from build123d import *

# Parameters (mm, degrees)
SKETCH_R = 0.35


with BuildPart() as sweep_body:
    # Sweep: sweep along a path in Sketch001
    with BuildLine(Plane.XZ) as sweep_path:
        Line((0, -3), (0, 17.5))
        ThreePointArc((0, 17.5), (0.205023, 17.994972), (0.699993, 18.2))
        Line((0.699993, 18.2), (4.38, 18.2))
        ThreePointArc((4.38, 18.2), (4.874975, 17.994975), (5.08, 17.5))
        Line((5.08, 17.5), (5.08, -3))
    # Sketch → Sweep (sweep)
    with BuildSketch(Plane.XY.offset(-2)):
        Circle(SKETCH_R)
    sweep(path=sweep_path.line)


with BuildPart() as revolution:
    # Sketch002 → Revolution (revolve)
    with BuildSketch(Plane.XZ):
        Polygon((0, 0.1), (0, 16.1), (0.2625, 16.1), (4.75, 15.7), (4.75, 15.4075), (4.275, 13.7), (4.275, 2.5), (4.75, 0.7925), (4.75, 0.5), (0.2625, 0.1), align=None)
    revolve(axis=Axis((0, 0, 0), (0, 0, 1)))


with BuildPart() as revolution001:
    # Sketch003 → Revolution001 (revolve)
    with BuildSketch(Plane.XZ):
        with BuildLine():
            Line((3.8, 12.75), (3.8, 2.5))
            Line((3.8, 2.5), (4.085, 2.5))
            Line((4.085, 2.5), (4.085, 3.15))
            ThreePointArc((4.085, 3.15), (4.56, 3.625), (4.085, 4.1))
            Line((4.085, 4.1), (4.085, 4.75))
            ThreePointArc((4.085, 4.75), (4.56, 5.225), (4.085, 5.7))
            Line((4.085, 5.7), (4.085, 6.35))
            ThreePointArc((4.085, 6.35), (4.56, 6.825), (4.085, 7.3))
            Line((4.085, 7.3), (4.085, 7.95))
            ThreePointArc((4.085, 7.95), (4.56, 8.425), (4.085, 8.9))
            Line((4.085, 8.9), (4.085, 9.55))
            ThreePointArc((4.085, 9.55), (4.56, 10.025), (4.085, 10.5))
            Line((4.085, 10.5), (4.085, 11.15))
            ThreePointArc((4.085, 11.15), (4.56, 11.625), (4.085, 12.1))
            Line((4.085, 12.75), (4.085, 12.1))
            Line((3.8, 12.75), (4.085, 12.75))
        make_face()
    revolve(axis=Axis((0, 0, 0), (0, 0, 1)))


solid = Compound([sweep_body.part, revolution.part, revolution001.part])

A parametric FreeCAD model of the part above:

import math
import FreeCAD as App
import Part
import Sketcher

doc = App.newDocument("Part")
body = doc.addObject("PartDesign::Body", "Body")

# Sketch on XY plane
sketch1 = body.newObject("Sketcher::SketchObject", "Sketch")
sketch1.AttachmentSupport = (doc.getObject("XY_Plane"), [""])
sketch1.MapMode = "FlatFace"
sketch1.AttachmentOffset = App.Placement(App.Vector(0, 0, -2), App.Rotation())
sketch1.addGeometry(Part.Circle(App.Vector(0, 0, 0), App.Vector(0, 0, 1), 0.35), False)
sketch1.addConstraint(Sketcher.Constraint("Coincident", 0, 3, -1, 1))
sketch1.addConstraint(Sketcher.Constraint("Diameter", 0, 0.7))

# Sketch on XZ plane
sketch2 = body.newObject("Sketcher::SketchObject", "Sketch001")
sketch2.AttachmentSupport = (doc.getObject("XZ_Plane"), [""])
sketch2.MapMode = "FlatFace"
sketch2.addGeometry(Part.LineSegment(App.Vector(0, -3, 0), App.Vector(0, 17.5, 0)), False)
sketch2.addGeometry(Part.ArcOfCircle(Part.Circle(App.Vector(0.7, 17.5, 0), App.Vector(0, 0, 1), 0.7), math.radians(90), math.radians(180)), False)
sketch2.addGeometry(Part.LineSegment(App.Vector(0.7, 18.2, 0), App.Vector(4.4, 18.2, 0)), False)
sketch2.addGeometry(Part.ArcOfCircle(Part.Circle(App.Vector(4.4, 17.5, 0), App.Vector(0, 0, 1), 0.7), math.radians(0), math.radians(90)), False)
sketch2.addGeometry(Part.LineSegment(App.Vector(5.1, 17.5, 0), App.Vector(5.1, -3, 0)), False)
sketch2.addConstraint(Sketcher.Constraint("Tangent", 0, 2, 1, 2))
sketch2.addConstraint(Sketcher.Constraint("Coincident", 1, 1, 2, 1))
sketch2.addConstraint(Sketcher.Constraint("Tangent", 2, 2, 3, 2))
sketch2.addConstraint(Sketcher.Constraint("Tangent", 3, 1, 4, 1))
sketch2.addConstraint(Sketcher.Constraint("Vertical", 0))
sketch2.addConstraint(Sketcher.Constraint("Horizontal", 2))
sketch2.addConstraint(Sketcher.Constraint("Vertical", 4))
sketch2.addConstraint(Sketcher.Constraint("Equal", 1, 3))
sketch2.addConstraint(Sketcher.Constraint("PointOnObject", 0, 1, -2))
sketch2.addConstraint(Sketcher.Constraint("Horizontal", 0, 1, 4, 2))
sketch2.addConstraint(Sketcher.Constraint("Radius", 1, 0.700001))
sketch2.addConstraint(Sketcher.Constraint("DistanceY", 0, 1, 0, 2, 20.5))
sketch2.addConstraint(Sketcher.Constraint("DistanceY", 0, 1, -1, 1, 3.0))
sketch2.addConstraint(Sketcher.Constraint("DistanceX", -1, 1, 3, 3, 4.380001))
sketch2.addConstraint(Sketcher.Constraint("DistanceX", 2, 1, 2, 2, 3.680007))
doc.recompute()

additivepipe = body.newObject("PartDesign::AdditivePipe", "AdditivePipe")
additivepipe.Profile = sketch1
additivepipe.Spine = (sketch2, ["Edge1", "Edge2", "Edge3", "Edge4", "Edge5"])
body2 = doc.addObject("PartDesign::Body", "Body001")

# Sketch on XZ plane
sketch3 = body2.newObject("Sketcher::SketchObject", "Sketch002")
sketch3.AttachmentSupport = (doc.getObject("XZ_Plane001"), [""])
sketch3.MapMode = "FlatFace"
sketch3.addGeometry(Part.LineSegment(App.Vector(0, 16.1, 0), App.Vector(0, 0.1, 0)), False)
sketch3.addGeometry(Part.LineSegment(App.Vector(0, 0.1, 0), App.Vector(0.26, 0.1, 0)), False)
sketch3.addGeometry(Part.LineSegment(App.Vector(0.26, 0.1, 0), App.Vector(4.75, 0.5, 0)), False)
sketch3.addGeometry(Part.LineSegment(App.Vector(4.75, 0.5, 0), App.Vector(4.75, 0.79, 0)), False)
sketch3.addGeometry(Part.LineSegment(App.Vector(4.75, 0.79, 0), App.Vector(4.28, 2.5, 0)), False)
sketch3.addGeometry(Part.LineSegment(App.Vector(4.28, 2.5, 0), App.Vector(4.28, 13.7, 0)), False)
sketch3.addGeometry(Part.LineSegment(App.Vector(4.28, 13.7, 0), App.Vector(4.75, 15.41, 0)), False)
sketch3.addGeometry(Part.LineSegment(App.Vector(4.75, 15.41, 0), App.Vector(4.75, 15.7, 0)), False)
sketch3.addGeometry(Part.LineSegment(App.Vector(4.75, 15.7, 0), App.Vector(0.26, 16.1, 0)), False)
sketch3.addGeometry(Part.LineSegment(App.Vector(0.26, 16.1, 0), App.Vector(0, 16.1, 0)), False)
sketch3.addConstraint(Sketcher.Constraint("Coincident", 0, 2, 1, 1))
sketch3.addConstraint(Sketcher.Constraint("Coincident", 1, 2, 2, 1))
sketch3.addConstraint(Sketcher.Constraint("Coincident", 2, 2, 3, 1))
sketch3.addConstraint(Sketcher.Constraint("Coincident", 3, 2, 4, 1))
sketch3.addConstraint(Sketcher.Constraint("Coincident", 4, 2, 5, 1))
sketch3.addConstraint(Sketcher.Constraint("Coincident", 5, 2, 6, 1))
sketch3.addConstraint(Sketcher.Constraint("Coincident", 6, 2, 7, 1))
sketch3.addConstraint(Sketcher.Constraint("Coincident", 7, 2, 8, 1))
sketch3.addConstraint(Sketcher.Constraint("Coincident", 8, 2, 9, 1))
sketch3.addConstraint(Sketcher.Constraint("Coincident", 9, 2, 0, 1))
sketch3.addConstraint(Sketcher.Constraint("Vertical", 0))
sketch3.addConstraint(Sketcher.Constraint("Horizontal", 1))
sketch3.addConstraint(Sketcher.Constraint("Vertical", 3))
sketch3.addConstraint(Sketcher.Constraint("Vertical", 5))
sketch3.addConstraint(Sketcher.Constraint("Vertical", 7))
sketch3.addConstraint(Sketcher.Constraint("Horizontal", 9))
sketch3.addConstraint(Sketcher.Constraint("PointOnObject", 0, 2, -2))
sketch3.addConstraint(Sketcher.Constraint("Vertical", 3, 2, 6, 2))
sketch3.addConstraint(Sketcher.Constraint("Vertical", 1, 2, 8, 2))
sketch3.addConstraint(Sketcher.Constraint("Equal", 3, 7))
sketch3.addConstraint(Sketcher.Constraint("Equal", 4, 6))
sketch3.addConstraint(Sketcher.Constraint("Equal", 2, 8))
sketch3.addConstraint(Sketcher.Constraint("DistanceY", 0, 2, 0, 1, 16.0))
sketch3.addConstraint(Sketcher.Constraint("DistanceY", 5, 1, 5, 2, 11.2))
sketch3.addConstraint(Sketcher.Constraint("DistanceY", 2, 2, 4, 2, 2.0))
sketch3.addConstraint(Sketcher.Constraint("DistanceY", -1, 1, 0, 2, 0.1))
sketch3.addConstraint(Sketcher.Constraint("DistanceX", -1, 1, 2, 2, 4.75))
sketch3.addConstraint(Sketcher.Constraint("DistanceX", 1, 1, 1, 2, 0.2625))
sketch3.addConstraint(Sketcher.Constraint("DistanceY", 3, 1, 3, 2, 0.2925))
sketch3.addConstraint(Sketcher.Constraint("DistanceX", -1, 1, 4, 2, 4.275))
revolution = body2.newObject("PartDesign::Revolution", "Revolution")
revolution.Profile = sketch3
revolution.ReferenceAxis = (sketch3, ["V_Axis"])
revolution.Angle = 360
body3 = doc.addObject("PartDesign::Body", "Body002")

# Sketch on XZ plane
sketch4 = body3.newObject("Sketcher::SketchObject", "Sketch003")
sketch4.AttachmentSupport = (doc.getObject("XZ_Plane002"), [""])
sketch4.MapMode = "FlatFace"
sketch4.addGeometry(Part.LineSegment(App.Vector(3.8, 12.75, 0), App.Vector(3.8, 2.5, 0)), False)
sketch4.addGeometry(Part.LineSegment(App.Vector(3.8, 2.5, 0), App.Vector(4.08, 2.5, 0)), False)
sketch4.addGeometry(Part.LineSegment(App.Vector(4.08, 2.5, 0), App.Vector(4.08, 3.15, 0)), False)
sketch4.addGeometry(Part.ArcOfCircle(Part.Circle(App.Vector(4.08, 3.62, 0), App.Vector(0, 0, 1), 0.47), math.radians(-90), math.radians(90)), False)
sketch4.addGeometry(Part.LineSegment(App.Vector(4.08, 4.1, 0), App.Vector(4.08, 4.75, 0)), False)
sketch4.addGeometry(Part.ArcOfCircle(Part.Circle(App.Vector(4.08, 5.22, 0), App.Vector(0, 0, 1), 0.47), math.radians(-90), math.radians(90)), False)
sketch4.addGeometry(Part.LineSegment(App.Vector(4.08, 5.7, 0), App.Vector(4.08, 6.35, 0)), False)
sketch4.addGeometry(Part.ArcOfCircle(Part.Circle(App.Vector(4.08, 6.83, 0), App.Vector(0, 0, 1), 0.47), math.radians(-90), math.radians(90)), False)
sketch4.addGeometry(Part.LineSegment(App.Vector(4.08, 7.3, 0), App.Vector(4.08, 7.95, 0)), False)
sketch4.addGeometry(Part.ArcOfCircle(Part.Circle(App.Vector(4.08, 8.43, 0), App.Vector(0, 0, 1), 0.47), math.radians(-90), math.radians(90)), False)
sketch4.addGeometry(Part.LineSegment(App.Vector(4.08, 8.9, 0), App.Vector(4.08, 9.55, 0)), False)
sketch4.addGeometry(Part.ArcOfCircle(Part.Circle(App.Vector(4.08, 10.03, 0), App.Vector(0, 0, 1), 0.47), math.radians(-90), math.radians(90)), False)
sketch4.addGeometry(Part.LineSegment(App.Vector(4.08, 10.5, 0), App.Vector(4.08, 11.15, 0)), False)
sketch4.addGeometry(Part.ArcOfCircle(Part.Circle(App.Vector(4.08, 11.62, 0), App.Vector(0, 0, 1), 0.47), math.radians(-90), math.radians(90)), False)
sketch4.addGeometry(Part.LineSegment(App.Vector(4.08, 12.1, 0), App.Vector(4.08, 12.75, 0)), False)
sketch4.addGeometry(Part.LineSegment(App.Vector(4.08, 12.75, 0), App.Vector(3.8, 12.75, 0)), False)
sketch4.addConstraint(Sketcher.Constraint("Coincident", 0, 2, 1, 1))
sketch4.addConstraint(Sketcher.Constraint("Coincident", 1, 2, 2, 1))
sketch4.addConstraint(Sketcher.Constraint("Coincident", 2, 2, 3, 1))
sketch4.addConstraint(Sketcher.Constraint("Coincident", 3, 2, 4, 1))
sketch4.addConstraint(Sketcher.Constraint("Coincident", 4, 2, 5, 1))
sketch4.addConstraint(Sketcher.Constraint("Coincident", 5, 2, 6, 1))
sketch4.addConstraint(Sketcher.Constraint("Coincident", 6, 2, 7, 1))
sketch4.addConstraint(Sketcher.Constraint("Coincident", 7, 2, 8, 1))
sketch4.addConstraint(Sketcher.Constraint("Coincident", 8, 2, 9, 1))
sketch4.addConstraint(Sketcher.Constraint("Coincident", 9, 2, 10, 1))
sketch4.addConstraint(Sketcher.Constraint("Coincident", 10, 2, 11, 1))
sketch4.addConstraint(Sketcher.Constraint("Coincident", 11, 2, 12, 1))
sketch4.addConstraint(Sketcher.Constraint("Coincident", 12, 2, 13, 1))
sketch4.addConstraint(Sketcher.Constraint("Coincident", 13, 2, 14, 1))
sketch4.addConstraint(Sketcher.Constraint("Coincident", 14, 2, 15, 1))
sketch4.addConstraint(Sketcher.Constraint("Coincident", 15, 2, 0, 1))
sketch4.addConstraint(Sketcher.Constraint("Vertical", 0))
sketch4.addConstraint(Sketcher.Constraint("Horizontal", 1))
sketch4.addConstraint(Sketcher.Constraint("Vertical", 2))
sketch4.addConstraint(Sketcher.Constraint("Vertical", 4))
sketch4.addConstraint(Sketcher.Constraint("Vertical", 6))
sketch4.addConstraint(Sketcher.Constraint("Vertical", 8))
sketch4.addConstraint(Sketcher.Constraint("Vertical", 10))
sketch4.addConstraint(Sketcher.Constraint("Vertical", 12))
sketch4.addConstraint(Sketcher.Constraint("Vertical", 14))
sketch4.addConstraint(Sketcher.Constraint("Horizontal", 15))
sketch4.addConstraint(Sketcher.Constraint("Equal", 3, 5))
sketch4.addConstraint(Sketcher.Constraint("Equal", 5, 7))
sketch4.addConstraint(Sketcher.Constraint("Equal", 7, 9))
sketch4.addConstraint(Sketcher.Constraint("Equal", 9, 11))
sketch4.addConstraint(Sketcher.Constraint("Equal", 11, 13))
sketch4.addConstraint(Sketcher.Constraint("Vertical", 3, 3, 5, 3))
sketch4.addConstraint(Sketcher.Constraint("Vertical", 5, 3, 7, 3))
sketch4.addConstraint(Sketcher.Constraint("Vertical", 7, 3, 9, 3))
sketch4.addConstraint(Sketcher.Constraint("Vertical", 9, 3, 11, 3))
sketch4.addConstraint(Sketcher.Constraint("Vertical", 11, 3, 13, 3))
sketch4.addConstraint(Sketcher.Constraint("Vertical", 13, 3, 1, 2))
sketch4.addConstraint(Sketcher.Constraint("Vertical", 2, 2, 3, 2))
sketch4.addConstraint(Sketcher.Constraint("Vertical", 4, 2, 5, 2))
sketch4.addConstraint(Sketcher.Constraint("Vertical", 6, 2, 7, 2))
sketch4.addConstraint(Sketcher.Constraint("Vertical", 8, 2, 9, 2))
sketch4.addConstraint(Sketcher.Constraint("Vertical", 10, 2, 11, 2))
sketch4.addConstraint(Sketcher.Constraint("Vertical", 12, 2, 13, 2))
sketch4.addConstraint(Sketcher.Constraint("Equal", 2, 4))
sketch4.addConstraint(Sketcher.Constraint("Equal", 4, 6))
sketch4.addConstraint(Sketcher.Constraint("Equal", 6, 8))
sketch4.addConstraint(Sketcher.Constraint("Equal", 8, 10))
sketch4.addConstraint(Sketcher.Constraint("Equal", 10, 12))
sketch4.addConstraint(Sketcher.Constraint("Equal", 12, 14))
sketch4.addConstraint(Sketcher.Constraint("Radius", 3, 0.475))
sketch4.addConstraint(Sketcher.Constraint("DistanceY", 3, 3, 13, 3, 8.0))
sketch4.addConstraint(Sketcher.Constraint("DistanceX", -1, 1, 0, 2, 3.8))
sketch4.addConstraint(Sketcher.Constraint("DistanceY", -1, 1, 0, 2, 2.5))
sketch4.addConstraint(Sketcher.Constraint("DistanceX", 1, 1, 1, 2, 0.285))
revolution2 = body3.newObject("PartDesign::Revolution", "Revolution001")
revolution2.Profile = sketch4
revolution2.ReferenceAxis = (sketch4, ["V_Axis"])
revolution2.Angle = 360

doc.recompute()
